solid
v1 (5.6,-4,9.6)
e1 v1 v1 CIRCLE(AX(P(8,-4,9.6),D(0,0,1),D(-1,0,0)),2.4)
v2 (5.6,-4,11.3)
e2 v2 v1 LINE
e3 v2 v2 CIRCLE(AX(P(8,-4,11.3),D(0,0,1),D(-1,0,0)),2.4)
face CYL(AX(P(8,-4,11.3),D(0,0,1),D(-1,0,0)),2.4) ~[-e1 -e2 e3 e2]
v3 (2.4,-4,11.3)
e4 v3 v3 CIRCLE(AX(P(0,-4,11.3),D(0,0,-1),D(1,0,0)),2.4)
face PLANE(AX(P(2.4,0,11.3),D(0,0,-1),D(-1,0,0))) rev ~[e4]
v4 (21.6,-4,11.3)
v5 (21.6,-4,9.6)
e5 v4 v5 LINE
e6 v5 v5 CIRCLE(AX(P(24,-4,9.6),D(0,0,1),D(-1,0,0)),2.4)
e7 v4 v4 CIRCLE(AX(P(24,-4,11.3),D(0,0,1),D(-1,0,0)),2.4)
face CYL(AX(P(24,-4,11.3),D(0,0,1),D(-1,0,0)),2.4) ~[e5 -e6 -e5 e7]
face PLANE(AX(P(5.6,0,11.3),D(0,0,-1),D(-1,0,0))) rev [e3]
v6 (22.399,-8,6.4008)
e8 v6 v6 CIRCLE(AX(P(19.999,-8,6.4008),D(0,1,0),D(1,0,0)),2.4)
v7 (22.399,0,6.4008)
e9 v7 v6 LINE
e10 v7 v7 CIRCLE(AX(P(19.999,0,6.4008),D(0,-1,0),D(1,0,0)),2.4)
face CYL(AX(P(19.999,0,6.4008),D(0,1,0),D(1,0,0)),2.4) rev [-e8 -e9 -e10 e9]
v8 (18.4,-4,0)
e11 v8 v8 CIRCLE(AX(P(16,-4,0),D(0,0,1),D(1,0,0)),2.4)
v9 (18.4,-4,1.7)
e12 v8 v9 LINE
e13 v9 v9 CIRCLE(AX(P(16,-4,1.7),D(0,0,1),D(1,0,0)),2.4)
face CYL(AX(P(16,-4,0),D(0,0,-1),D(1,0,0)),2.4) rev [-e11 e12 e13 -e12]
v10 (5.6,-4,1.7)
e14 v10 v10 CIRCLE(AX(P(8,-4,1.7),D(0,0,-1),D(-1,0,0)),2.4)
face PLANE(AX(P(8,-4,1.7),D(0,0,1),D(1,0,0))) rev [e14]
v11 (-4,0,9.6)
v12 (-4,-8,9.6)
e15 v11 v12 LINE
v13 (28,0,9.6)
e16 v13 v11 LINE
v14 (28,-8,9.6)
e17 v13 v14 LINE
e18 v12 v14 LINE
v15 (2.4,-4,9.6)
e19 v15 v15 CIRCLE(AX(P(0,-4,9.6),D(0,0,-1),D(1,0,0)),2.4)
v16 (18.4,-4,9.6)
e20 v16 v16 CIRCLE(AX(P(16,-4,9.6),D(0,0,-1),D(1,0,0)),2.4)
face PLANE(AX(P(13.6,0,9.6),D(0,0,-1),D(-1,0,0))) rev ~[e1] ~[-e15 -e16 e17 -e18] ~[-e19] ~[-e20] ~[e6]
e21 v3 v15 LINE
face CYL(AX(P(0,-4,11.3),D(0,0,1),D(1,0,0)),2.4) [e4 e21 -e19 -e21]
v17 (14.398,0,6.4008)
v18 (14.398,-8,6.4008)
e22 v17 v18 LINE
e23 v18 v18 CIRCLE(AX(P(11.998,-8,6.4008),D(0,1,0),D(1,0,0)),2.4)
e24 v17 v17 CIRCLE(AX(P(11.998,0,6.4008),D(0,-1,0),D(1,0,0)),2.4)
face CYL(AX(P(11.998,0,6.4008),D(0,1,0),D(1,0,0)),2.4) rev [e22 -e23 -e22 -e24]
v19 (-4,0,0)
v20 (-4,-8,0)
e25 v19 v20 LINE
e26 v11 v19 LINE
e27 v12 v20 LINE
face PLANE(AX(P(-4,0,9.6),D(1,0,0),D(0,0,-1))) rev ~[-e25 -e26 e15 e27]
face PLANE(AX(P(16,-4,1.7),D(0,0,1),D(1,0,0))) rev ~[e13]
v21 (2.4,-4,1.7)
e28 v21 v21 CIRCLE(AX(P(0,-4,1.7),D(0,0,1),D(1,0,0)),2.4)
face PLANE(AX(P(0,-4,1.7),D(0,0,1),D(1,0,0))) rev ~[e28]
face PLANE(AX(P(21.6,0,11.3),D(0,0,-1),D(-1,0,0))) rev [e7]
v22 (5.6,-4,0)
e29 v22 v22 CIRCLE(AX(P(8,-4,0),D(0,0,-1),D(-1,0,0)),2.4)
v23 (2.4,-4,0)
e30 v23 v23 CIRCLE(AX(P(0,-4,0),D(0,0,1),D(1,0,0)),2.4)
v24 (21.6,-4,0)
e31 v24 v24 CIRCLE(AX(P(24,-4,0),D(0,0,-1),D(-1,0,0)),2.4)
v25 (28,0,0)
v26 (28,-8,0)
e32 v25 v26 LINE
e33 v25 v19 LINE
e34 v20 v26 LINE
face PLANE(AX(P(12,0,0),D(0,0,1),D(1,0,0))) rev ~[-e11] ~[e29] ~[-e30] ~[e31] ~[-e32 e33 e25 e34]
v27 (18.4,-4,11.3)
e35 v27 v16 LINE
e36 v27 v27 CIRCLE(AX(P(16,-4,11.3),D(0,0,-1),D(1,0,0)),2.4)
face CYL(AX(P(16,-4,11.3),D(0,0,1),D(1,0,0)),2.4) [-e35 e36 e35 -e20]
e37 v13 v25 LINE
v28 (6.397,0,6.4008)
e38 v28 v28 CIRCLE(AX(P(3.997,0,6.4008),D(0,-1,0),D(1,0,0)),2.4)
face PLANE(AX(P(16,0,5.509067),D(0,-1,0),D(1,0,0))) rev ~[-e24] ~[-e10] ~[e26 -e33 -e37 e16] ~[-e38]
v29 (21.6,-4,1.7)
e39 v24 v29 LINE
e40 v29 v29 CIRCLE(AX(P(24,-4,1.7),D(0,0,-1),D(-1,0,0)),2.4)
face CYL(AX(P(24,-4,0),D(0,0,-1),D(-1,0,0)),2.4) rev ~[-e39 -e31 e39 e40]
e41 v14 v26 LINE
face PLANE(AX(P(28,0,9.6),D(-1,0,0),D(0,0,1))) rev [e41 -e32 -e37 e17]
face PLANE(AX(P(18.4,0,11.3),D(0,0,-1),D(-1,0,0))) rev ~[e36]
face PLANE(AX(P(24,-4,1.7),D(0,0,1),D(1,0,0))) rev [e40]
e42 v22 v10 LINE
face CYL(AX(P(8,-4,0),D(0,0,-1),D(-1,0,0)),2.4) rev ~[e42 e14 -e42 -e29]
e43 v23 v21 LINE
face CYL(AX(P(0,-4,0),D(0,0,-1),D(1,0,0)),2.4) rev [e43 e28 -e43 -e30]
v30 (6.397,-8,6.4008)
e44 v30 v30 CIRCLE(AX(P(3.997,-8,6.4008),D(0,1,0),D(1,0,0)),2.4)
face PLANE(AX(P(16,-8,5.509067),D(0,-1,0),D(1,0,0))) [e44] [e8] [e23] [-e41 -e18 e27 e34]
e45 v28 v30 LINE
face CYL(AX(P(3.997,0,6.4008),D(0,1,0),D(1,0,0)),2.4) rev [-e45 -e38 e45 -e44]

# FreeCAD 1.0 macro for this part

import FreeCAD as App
import Part
import Sketcher
from FreeCAD import Vector

doc = App.newDocument("Part")
body = doc.addObject("PartDesign::Body", "Body")

sketch1 = body.newObject("Sketcher::SketchObject", "Sketch")
sketch1.AttachmentSupport = (doc.getObject("XZ_Plane"), [""])
sketch1.MapMode = "FlatFace"
sketch1.addGeometry(Part.LineSegment(Vector(-2.4, 9.6, 0), Vector(-4, 9.6, 0)), False)
sketch1.addGeometry(Part.LineSegment(Vector(-4, 9.6, 0), Vector(-4, 0, 0)), False)
sketch1.addGeometry(Part.LineSegment(Vector(-4, 0, 0), Vector(4, 0, 0)), False)
sketch1.addGeometry(Part.LineSegment(Vector(4, 0, 0), Vector(4, 9.6, 0)), False)
sketch1.addGeometry(Part.LineSegment(Vector(4, 9.6, 0), Vector(2.4, 9.6, 0)), False)
sketch1.addGeometry(Part.LineSegment(Vector(2.4, 9.6, 0), Vector(2.4, 11.3, 0)), False)
sketch1.addGeometry(Part.LineSegment(Vector(2.4, 11.3, 0), Vector(-2.4, 11.3, 0)), False)
sketch1.addGeometry(Part.LineSegment(Vector(-2.4, 11.3, 0), Vector(-2.4, 9.6, 0)), False)
sketch1.addConstraint(Sketcher.Constraint("Coincident", 0, 2, 1, 1))
sketch1.addConstraint(Sketcher.Constraint("Coincident", 1, 2, 2, 1))
sketch1.addConstraint(Sketcher.Constraint("Coincident", 2, 2, 3, 1))
sketch1.addConstraint(Sketcher.Constraint("Coincident", 3, 2, 4, 1))
sketch1.addConstraint(Sketcher.Constraint("Coincident", 4, 2, 5, 1))
sketch1.addConstraint(Sketcher.Constraint("Coincident", 5, 2, 6, 1))
sketch1.addConstraint(Sketcher.Constraint("Coincident", 6, 2, 7, 1))
sketch1.addConstraint(Sketcher.Constraint("Coincident", 7, 2, 0, 1))
sketch1.addConstraint(Sketcher.Constraint("Horizontal", 0))
sketch1.addConstraint(Sketcher.Constraint("Vertical", 1))
sketch1.addConstraint(Sketcher.Constraint("Horizontal", 2))
sketch1.addConstraint(Sketcher.Constraint("Vertical", 3))
sketch1.addConstraint(Sketcher.Constraint("Horizontal", 4))
sketch1.addConstraint(Sketcher.Constraint("Vertical", 5))
sketch1.addConstraint(Sketcher.Constraint("Horizontal", 6))
sketch1.addConstraint(Sketcher.Constraint("Vertical", 7))
sketch1.addConstraint(Sketcher.Constraint("Symmetric", 1, 2, 2, 2, -1, 1))
sketch1.addConstraint(Sketcher.Constraint("Symmetric", 4, 2, 7, 2, -2))
sketch1.addConstraint(Sketcher.Constraint("DistanceX", 2, 1, 2, 2, 8.0))
sketch1.addConstraint(Sketcher.Constraint("DistanceX", 0, 2, 0, 1, 1.6))
sketch1.addConstraint(Sketcher.Constraint("DistanceY", 1, 2, 1, 1, 9.6))
sketch1.addConstraint(Sketcher.Constraint("DistanceY", 5, 1, 5, 2, 1.7))
pad1 = body.newObject("PartDesign::Pad", "Pad")
pad1.Profile = sketch1
pad1.Length = 8

sketch2 = body.newObject("Sketcher::SketchObject", "Sketch001")
sketch2.AttachmentSupport = (doc.getObject("XY_Plane"), [""])
sketch2.MapMode = "FlatFace"
sketch2.AttachmentOffset = App.Placement(Vector(0, 0, 11.3), App.Rotation())
sketch2.addGeometry(Part.LineSegment(Vector(-4, 0, 0), Vector(-4, -8, 0)), False)
sketch2.addGeometry(Part.LineSegment(Vector(-4, -8, 0), Vector(4, -8, 0)), False)
sketch2.addGeometry(Part.LineSegment(Vector(4, -8, 0), Vector(4, 0, 0)), False)
sketch2.addGeometry(Part.LineSegment(Vector(4, 0, 0), Vector(-4, 0, 0)), False)
sketch2.addGeometry(Part.Circle(Vector(0, -4, 0), Vector(0, 0, 1), 2.4), False)
sketch2.addConstraint(Sketcher.Constraint("Coincident", 0, 2, 1, 1))
sketch2.addConstraint(Sketcher.Constraint("Coincident", 1, 2, 2, 1))
sketch2.addConstraint(Sketcher.Constraint("Coincident", 2, 2, 3, 1))
sketch2.addConstraint(Sketcher.Constraint("Coincident", 3, 2, 0, 1))
sketch2.addConstraint(Sketcher.Constraint("Vertical", 0))
sketch2.addConstraint(Sketcher.Constraint("Horizontal", 1))
sketch2.addConstraint(Sketcher.Constraint("Vertical", 2))
sketch2.addConstraint(Sketcher.Constraint("Horizontal", 3))
sketch2.addConstraint(Sketcher.Constraint("Symmetric", 2, 2, 3, 2, -1, 1))
sketch2.addConstraint(Sketcher.Constraint("PointOnObject", 4, 3, -2))
sketch2.addConstraint(Sketcher.Constraint("Equal", 3, 0))
sketch2.addConstraint(Sketcher.Constraint("Diameter", 4, 4.8))
sketch2.addConstraint(Sketcher.Constraint("DistanceX", 1, 1, 1, 2, 8.0))
sketch2.addConstraint(Sketcher.Constraint("DistanceY", 4, 3, -1, 1, 4.0))
pocket1 = body.newObject("PartDesign::Pocket", "Pocket")
pocket1.Profile = sketch2
pocket1.Length = 1.7

sketch3 = body.newObject("Sketcher::SketchObject", "Sketch002")
sketch3.AttachmentSupport = (doc.getObject("XY_Plane"), [""])
sketch3.MapMode = "FlatFace"
sketch3.addGeometry(Part.Circle(Vector(0, -4, 0), Vector(0, 0, 1), 2.4), False)
sketch3.addConstraint(Sketcher.Constraint("PointOnObject", 0, 3, -2))
sketch3.addConstraint(Sketcher.Constraint("Diameter", 0, 4.8))
sketch3.addConstraint(Sketcher.Constraint("DistanceY", 0, 3, -1, 1, 4.0))
pocket2 = body.newObject("PartDesign::Pocket", "Pocket001")
pocket2.Profile = sketch3
pocket2.Length = 1.7
pocket2.Reversed = True
body2 = doc.addObject("PartDesign::Body", "Body001")
doc.recompute()

body2.BaseFeature = body
doc.recompute()

mirroring = doc.addObject("Part::Mirroring", "Mirroring")
mirroring.Source = body
mirroring.Base = Vector(4, 0, 0)
mirroring.Normal = Vector(1, 0, 0)
body3 = doc.addObject("PartDesign::Body", "Body002")
body3.BaseFeature = mirroring
boolean = body2.newObject("PartDesign::Boolean", "Boolean")
boolean.Type = "Fuse"
boolean.addObjects([body3])
doc.recompute()
body4 = doc.addObject("PartDesign::Body", "Body003")
doc.recompute()

body4.BaseFeature = body2
doc.recompute()

mirroring2 = doc.addObject("Part::Mirroring", "Mirroring001")
mirroring2.Source = body2
mirroring2.Base = Vector(12, 0, 0)
mirroring2.Normal = Vector(1, 0, 0)
body5 = doc.addObject("PartDesign::Body", "Body004")
body5.BaseFeature = mirroring2
boolean2 = body4.newObject("PartDesign::Boolean", "Boolean001")
boolean2.Type = "Fuse"
boolean2.addObjects([body5])
doc.recompute()

sketch4 = body4.newObject("Sketcher::SketchObject", "Sketch003")
sketch4.AttachmentSupport = (doc.getObject("XZ_Plane003"), [""])
sketch4.MapMode = "FlatFace"
sketch4.addGeometry(Part.Circle(Vector(20, 6.4, 0), Vector(0, 0, 1), 2.4), False)
sketch4.addGeometry(Part.Circle(Vector(12, 6.4, 0), Vector(0, 0, 1), 2.4), False)
sketch4.addGeometry(Part.Circle(Vector(4, 6.4, 0), Vector(0, 0, 1), 2.4), False)
sketch4.addConstraint(Sketcher.Constraint("Equal", 0, 1))
sketch4.addConstraint(Sketcher.Constraint("Equal", 1, 2))
sketch4.addConstraint(Sketcher.Constraint("Horizontal", 0, 3, 1, 3))
sketch4.addConstraint(Sketcher.Constraint("Horizontal", 1, 3, 2, 3))
sketch4.addConstraint(Sketcher.Constraint("Diameter", 0, 4.8))
sketch4.addConstraint(Sketcher.Constraint("DistanceX", -1, 1, 0, 3, 19.999))
sketch4.addConstraint(Sketcher.Constraint("DistanceX", -1, 1, 1, 3, 11.998))
sketch4.addConstraint(Sketcher.Constraint("DistanceX", -1, 1, 2, 3, 3.997))
sketch4.addConstraint(Sketcher.Constraint("DistanceY", -1, 1, 0, 3, 6.4008))
pocket3 = body4.newObject("PartDesign::Pocket", "Pocket002")
pocket3.Profile = sketch4
pocket3.Length = 25.4
pocket3.Reversed = True
mirroring.Visibility = False
mirroring2.Visibility = False

doc.recompute()
